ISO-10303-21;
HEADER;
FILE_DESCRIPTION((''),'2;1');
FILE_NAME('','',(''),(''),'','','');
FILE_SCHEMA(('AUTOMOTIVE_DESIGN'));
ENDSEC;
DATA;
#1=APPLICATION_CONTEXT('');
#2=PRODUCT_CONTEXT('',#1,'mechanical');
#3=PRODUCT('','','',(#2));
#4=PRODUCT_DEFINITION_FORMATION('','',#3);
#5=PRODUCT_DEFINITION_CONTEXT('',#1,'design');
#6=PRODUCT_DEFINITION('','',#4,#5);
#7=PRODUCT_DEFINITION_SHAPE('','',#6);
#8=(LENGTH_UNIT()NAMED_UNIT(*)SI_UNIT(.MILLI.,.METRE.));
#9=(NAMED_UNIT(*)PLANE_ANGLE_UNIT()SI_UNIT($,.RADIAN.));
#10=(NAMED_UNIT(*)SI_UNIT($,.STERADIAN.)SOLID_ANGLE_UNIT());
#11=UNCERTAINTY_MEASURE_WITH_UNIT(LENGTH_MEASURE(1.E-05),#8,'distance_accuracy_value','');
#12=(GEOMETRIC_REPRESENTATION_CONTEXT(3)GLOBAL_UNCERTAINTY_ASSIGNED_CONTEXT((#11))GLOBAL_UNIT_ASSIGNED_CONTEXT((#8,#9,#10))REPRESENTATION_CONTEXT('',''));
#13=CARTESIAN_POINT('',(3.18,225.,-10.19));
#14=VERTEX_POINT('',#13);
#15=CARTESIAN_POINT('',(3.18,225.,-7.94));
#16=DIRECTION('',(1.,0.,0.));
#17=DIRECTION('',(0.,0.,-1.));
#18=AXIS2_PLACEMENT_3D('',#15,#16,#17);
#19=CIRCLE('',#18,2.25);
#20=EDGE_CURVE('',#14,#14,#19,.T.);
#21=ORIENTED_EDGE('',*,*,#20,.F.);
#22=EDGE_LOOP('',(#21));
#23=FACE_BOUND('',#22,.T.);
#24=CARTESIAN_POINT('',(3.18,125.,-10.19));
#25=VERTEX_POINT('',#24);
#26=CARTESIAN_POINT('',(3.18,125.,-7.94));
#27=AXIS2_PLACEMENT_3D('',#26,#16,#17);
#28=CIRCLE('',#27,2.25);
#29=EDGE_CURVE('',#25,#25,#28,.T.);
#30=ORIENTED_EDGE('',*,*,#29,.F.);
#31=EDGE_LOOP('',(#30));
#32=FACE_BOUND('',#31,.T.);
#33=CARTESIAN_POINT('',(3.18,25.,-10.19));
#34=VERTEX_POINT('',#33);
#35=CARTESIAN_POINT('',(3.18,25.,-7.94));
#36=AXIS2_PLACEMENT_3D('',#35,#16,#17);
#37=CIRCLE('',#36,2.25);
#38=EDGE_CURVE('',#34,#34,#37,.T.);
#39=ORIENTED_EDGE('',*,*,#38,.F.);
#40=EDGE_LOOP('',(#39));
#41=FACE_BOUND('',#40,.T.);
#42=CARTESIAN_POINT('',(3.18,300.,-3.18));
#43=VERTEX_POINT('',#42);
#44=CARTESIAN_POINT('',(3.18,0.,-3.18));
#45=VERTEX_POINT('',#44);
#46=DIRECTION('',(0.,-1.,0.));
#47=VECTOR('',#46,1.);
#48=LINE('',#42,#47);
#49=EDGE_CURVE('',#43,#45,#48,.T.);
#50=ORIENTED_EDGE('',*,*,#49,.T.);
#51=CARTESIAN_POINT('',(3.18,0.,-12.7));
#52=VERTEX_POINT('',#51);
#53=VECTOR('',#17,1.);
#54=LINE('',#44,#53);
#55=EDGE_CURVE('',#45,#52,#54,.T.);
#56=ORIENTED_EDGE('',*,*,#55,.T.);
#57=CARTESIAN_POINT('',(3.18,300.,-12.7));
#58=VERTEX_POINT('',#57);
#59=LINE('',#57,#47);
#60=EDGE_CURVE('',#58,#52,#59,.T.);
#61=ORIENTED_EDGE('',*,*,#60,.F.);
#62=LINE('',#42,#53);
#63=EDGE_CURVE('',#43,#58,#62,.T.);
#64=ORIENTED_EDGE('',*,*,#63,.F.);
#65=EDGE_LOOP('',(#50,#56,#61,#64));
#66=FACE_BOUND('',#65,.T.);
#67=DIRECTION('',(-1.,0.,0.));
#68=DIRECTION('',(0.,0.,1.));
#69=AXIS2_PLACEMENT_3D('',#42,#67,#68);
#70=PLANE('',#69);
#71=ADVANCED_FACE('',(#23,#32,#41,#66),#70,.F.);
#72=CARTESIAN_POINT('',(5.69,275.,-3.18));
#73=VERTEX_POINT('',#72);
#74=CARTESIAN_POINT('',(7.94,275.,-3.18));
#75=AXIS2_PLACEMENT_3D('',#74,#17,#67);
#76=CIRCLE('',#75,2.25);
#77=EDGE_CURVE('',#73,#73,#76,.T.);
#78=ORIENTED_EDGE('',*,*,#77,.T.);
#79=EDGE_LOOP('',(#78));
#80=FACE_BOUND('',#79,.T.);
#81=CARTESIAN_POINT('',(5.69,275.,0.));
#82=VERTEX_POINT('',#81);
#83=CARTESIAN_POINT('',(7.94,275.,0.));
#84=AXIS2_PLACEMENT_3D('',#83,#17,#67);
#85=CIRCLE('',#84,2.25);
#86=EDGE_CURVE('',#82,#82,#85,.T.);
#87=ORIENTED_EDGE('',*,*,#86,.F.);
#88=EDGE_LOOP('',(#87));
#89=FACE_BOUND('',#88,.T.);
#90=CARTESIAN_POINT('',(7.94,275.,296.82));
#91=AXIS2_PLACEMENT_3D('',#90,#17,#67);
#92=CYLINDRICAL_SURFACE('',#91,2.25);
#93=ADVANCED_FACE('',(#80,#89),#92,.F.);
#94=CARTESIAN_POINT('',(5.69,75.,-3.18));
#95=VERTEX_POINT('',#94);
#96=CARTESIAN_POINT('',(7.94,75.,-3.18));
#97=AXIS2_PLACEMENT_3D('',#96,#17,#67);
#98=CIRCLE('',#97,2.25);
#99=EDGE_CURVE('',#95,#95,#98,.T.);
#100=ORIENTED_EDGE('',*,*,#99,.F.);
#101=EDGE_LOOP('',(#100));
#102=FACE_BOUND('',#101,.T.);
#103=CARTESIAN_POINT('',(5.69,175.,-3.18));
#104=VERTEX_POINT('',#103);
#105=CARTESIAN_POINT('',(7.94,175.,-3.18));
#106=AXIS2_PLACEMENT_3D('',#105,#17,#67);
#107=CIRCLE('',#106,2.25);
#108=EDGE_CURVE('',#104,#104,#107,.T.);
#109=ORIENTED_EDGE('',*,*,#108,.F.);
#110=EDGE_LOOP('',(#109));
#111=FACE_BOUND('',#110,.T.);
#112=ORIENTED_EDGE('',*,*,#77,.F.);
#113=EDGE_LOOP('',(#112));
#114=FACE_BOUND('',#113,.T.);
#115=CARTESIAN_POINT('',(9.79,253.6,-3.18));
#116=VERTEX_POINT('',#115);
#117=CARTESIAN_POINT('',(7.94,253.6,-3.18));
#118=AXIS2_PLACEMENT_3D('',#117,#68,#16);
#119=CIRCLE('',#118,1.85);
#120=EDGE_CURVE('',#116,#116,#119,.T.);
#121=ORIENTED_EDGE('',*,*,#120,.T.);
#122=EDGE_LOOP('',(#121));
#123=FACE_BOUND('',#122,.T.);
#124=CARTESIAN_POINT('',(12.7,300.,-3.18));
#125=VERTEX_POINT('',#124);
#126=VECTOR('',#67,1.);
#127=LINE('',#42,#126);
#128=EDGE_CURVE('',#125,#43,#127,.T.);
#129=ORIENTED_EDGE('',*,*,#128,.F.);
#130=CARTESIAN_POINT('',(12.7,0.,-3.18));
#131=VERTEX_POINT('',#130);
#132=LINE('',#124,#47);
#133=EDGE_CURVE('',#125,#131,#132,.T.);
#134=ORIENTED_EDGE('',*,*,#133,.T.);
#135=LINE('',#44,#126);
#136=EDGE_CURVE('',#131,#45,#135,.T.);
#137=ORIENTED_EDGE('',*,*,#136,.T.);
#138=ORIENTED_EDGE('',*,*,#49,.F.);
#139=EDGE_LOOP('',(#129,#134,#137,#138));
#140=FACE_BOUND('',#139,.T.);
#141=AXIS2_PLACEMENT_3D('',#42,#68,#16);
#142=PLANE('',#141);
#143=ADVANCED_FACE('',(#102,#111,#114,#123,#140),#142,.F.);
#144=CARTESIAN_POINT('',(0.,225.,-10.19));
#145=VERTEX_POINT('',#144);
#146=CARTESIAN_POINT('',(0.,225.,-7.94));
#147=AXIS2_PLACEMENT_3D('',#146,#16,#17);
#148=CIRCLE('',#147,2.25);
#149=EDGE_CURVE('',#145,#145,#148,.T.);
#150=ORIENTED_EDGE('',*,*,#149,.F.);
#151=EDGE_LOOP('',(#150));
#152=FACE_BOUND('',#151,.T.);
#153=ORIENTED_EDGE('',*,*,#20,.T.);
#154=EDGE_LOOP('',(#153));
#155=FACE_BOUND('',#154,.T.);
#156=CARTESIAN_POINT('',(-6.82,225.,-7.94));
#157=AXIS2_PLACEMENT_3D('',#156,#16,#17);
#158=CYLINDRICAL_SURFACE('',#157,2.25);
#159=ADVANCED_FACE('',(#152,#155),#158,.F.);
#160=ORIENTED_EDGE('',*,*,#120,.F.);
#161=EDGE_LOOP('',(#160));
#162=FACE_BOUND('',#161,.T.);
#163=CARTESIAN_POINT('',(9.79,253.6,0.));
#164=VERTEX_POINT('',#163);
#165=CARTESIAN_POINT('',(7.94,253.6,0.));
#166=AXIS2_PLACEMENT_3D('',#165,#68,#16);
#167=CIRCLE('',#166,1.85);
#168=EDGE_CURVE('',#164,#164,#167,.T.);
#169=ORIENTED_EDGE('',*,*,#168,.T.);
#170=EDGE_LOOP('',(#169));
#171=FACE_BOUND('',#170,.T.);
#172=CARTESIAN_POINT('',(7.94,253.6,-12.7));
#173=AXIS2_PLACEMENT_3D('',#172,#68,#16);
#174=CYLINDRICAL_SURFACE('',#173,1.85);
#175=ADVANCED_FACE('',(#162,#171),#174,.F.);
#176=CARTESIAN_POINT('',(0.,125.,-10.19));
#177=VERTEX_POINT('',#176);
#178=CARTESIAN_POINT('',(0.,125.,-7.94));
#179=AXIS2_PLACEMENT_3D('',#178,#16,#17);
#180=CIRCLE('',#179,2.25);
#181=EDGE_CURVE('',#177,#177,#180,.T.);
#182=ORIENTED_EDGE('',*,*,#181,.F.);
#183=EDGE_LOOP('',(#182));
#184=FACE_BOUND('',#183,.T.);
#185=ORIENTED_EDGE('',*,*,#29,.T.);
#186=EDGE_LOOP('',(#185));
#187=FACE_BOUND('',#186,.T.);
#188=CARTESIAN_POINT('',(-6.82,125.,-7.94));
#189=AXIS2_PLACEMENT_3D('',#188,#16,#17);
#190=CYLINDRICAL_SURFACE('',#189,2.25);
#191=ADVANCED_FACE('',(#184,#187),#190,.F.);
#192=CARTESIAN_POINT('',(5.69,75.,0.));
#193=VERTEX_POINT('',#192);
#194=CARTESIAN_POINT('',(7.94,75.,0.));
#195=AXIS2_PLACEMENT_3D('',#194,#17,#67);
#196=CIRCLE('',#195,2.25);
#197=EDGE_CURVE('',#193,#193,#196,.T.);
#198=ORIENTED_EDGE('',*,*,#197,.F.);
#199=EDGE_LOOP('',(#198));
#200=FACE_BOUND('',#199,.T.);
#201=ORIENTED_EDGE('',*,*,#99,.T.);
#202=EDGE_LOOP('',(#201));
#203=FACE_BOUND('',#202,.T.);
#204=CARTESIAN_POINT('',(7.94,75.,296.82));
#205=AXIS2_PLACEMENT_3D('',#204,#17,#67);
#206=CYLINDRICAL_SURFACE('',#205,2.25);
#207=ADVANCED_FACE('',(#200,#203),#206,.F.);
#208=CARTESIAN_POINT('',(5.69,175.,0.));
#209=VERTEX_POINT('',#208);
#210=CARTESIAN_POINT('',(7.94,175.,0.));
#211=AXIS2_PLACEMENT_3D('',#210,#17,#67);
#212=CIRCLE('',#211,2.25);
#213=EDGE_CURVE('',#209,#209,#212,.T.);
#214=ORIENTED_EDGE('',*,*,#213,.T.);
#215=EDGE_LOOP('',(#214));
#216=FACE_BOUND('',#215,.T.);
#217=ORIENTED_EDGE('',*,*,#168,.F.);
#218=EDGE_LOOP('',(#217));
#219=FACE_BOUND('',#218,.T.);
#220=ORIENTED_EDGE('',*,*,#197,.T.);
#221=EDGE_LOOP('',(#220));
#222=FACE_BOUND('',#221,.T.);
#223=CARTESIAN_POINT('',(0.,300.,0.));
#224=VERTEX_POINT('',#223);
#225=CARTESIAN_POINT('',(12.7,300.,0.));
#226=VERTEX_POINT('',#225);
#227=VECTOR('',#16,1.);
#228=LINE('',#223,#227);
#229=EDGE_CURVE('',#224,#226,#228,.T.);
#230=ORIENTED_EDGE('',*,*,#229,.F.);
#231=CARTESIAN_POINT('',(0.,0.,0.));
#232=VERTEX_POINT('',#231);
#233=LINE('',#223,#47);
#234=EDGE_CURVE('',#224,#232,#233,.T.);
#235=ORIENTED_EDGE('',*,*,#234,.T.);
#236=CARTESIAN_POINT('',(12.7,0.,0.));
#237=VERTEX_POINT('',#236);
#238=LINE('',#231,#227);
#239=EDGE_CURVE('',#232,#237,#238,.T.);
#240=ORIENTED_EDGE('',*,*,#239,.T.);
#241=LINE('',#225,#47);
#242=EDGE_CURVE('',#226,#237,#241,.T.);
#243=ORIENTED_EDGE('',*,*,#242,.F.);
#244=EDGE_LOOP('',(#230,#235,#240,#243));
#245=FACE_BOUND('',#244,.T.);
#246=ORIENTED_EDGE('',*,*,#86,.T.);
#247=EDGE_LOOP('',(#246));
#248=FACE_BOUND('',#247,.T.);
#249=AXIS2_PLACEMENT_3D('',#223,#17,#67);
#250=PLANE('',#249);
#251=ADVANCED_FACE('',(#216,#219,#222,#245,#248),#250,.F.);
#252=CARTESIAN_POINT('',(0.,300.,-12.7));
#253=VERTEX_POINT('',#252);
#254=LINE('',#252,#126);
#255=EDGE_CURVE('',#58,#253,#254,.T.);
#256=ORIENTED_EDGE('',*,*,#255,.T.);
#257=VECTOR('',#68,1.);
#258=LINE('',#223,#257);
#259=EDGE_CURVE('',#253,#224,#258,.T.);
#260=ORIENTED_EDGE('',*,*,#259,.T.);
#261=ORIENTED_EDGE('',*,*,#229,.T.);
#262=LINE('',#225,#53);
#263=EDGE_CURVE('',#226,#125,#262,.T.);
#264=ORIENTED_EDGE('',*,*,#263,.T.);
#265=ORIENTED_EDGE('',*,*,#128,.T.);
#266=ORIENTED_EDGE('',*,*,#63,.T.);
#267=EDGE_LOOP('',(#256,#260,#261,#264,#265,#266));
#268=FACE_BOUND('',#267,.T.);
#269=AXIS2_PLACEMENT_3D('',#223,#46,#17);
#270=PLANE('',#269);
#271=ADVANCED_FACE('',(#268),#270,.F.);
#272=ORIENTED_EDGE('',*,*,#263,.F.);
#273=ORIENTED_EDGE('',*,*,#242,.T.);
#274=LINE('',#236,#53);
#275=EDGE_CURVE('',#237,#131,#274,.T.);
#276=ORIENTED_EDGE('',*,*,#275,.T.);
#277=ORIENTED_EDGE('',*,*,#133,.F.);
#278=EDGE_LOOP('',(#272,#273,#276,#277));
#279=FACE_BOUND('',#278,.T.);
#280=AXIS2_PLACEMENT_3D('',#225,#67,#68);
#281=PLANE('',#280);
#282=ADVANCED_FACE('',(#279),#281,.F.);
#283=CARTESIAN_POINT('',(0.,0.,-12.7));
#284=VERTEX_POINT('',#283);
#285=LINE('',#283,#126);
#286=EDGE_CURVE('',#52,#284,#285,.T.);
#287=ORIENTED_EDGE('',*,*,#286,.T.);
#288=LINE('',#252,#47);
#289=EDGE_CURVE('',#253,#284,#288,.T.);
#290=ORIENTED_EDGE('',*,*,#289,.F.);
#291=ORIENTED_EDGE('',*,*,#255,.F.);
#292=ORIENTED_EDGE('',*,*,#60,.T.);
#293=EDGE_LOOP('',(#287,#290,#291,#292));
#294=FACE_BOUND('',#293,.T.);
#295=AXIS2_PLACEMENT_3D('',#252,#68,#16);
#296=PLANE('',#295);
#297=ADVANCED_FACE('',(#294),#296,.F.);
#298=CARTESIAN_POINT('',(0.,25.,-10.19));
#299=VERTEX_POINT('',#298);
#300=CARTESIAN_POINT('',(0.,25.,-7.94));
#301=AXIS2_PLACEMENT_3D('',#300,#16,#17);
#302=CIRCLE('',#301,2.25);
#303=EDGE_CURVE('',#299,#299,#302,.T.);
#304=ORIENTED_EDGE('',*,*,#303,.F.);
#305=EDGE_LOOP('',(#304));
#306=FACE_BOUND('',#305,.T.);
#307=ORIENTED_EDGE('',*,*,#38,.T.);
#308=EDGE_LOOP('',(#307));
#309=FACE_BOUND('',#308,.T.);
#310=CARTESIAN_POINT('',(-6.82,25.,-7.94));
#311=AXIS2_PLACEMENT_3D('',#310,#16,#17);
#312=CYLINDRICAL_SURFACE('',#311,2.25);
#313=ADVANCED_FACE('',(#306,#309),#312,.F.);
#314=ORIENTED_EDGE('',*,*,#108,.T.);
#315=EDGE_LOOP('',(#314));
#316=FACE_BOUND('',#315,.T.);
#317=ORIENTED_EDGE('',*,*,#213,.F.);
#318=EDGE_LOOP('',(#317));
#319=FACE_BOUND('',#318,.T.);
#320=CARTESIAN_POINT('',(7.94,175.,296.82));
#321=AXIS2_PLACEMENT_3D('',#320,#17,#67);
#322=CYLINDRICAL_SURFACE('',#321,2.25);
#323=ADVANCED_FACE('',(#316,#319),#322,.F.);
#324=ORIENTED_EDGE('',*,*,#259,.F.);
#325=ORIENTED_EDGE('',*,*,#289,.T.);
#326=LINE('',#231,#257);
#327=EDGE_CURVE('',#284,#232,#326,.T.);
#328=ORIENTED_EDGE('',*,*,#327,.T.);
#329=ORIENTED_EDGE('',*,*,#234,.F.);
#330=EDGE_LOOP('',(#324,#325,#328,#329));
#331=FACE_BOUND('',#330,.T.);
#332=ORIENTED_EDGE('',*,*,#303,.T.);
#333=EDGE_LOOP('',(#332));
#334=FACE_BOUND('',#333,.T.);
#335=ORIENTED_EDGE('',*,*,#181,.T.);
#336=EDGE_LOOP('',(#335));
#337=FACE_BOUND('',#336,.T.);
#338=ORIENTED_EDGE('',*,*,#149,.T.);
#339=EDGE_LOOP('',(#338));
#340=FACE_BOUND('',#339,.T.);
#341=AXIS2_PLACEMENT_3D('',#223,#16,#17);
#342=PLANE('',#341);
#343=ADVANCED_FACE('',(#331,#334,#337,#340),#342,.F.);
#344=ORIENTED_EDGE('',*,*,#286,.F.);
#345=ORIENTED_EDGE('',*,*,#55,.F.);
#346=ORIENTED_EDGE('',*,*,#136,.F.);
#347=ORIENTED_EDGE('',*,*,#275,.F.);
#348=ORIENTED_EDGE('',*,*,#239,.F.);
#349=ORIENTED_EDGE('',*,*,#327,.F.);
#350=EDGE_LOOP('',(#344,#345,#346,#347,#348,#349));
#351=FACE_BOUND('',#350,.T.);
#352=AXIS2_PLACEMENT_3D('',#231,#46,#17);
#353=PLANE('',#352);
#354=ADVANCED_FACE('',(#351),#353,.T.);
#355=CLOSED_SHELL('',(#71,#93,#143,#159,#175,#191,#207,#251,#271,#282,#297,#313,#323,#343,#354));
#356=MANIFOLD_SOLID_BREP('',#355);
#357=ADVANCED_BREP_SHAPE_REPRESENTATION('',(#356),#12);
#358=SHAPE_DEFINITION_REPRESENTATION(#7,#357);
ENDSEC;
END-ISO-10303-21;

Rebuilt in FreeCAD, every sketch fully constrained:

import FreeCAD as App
import Part
import Sketcher

doc = App.newDocument("Part")
body = doc.addObject("PartDesign::Body", "Body")

sketch1 = doc.addObject("Sketcher::SketchObject", "Sketch")
body.addObject(sketch1)
sketch1.AttachmentSupport = (doc.XZ_Plane, [""])
sketch1.MapMode = "FlatFace"
sketch1.addGeometry([
    Part.LineSegment(App.Vector(0, 0, 0), App.Vector(12.7, 0, 0)),
    Part.LineSegment(App.Vector(12.7, 0, 0), App.Vector(12.7, -3.2, 0)),
    Part.LineSegment(App.Vector(12.7, -3.2, 0), App.Vector(3.2, -3.2, 0)),
    Part.LineSegment(App.Vector(3.2, -3.2, 0), App.Vector(3.2, -12.7, 0)),
    Part.LineSegment(App.Vector(3.2, -12.7, 0), App.Vector(0, -12.7, 0)),
    Part.LineSegment(App.Vector(0, -12.7, 0), App.Vector(0, 0, 0)),
], False)
sketch1.addConstraint([
    Sketcher.Constraint("Coincident", 0, 2, 1, 1),
    Sketcher.Constraint("Coincident", 1, 2, 2, 1),
    Sketcher.Constraint("Coincident", 2, 2, 3, 1),
    Sketcher.Constraint("Coincident", 3, 2, 4, 1),
    Sketcher.Constraint("Coincident", 4, 2, 5, 1),
    Sketcher.Constraint("Coincident", 5, 2, 0, 1),
    Sketcher.Constraint("Horizontal", 0),
    Sketcher.Constraint("Vertical", 1),
    Sketcher.Constraint("Horizontal", 2),
    Sketcher.Constraint("Vertical", 3),
    Sketcher.Constraint("Horizontal", 4),
    Sketcher.Constraint("Vertical", 5),
    Sketcher.Constraint("Coincident", 5, 2, -1, 1),
    Sketcher.Constraint("Equal", 4, 1),
    Sketcher.Constraint("Equal", 2, 3),
    Sketcher.Constraint("DistanceX", 0, 1, 0, 2, 12.7),
    Sketcher.Constraint("DistanceX", 2, 2, 2, 1, 9.52),
])
pad1 = doc.addObject("PartDesign::Pad", "Pad")
body.addObject(pad1)
pad1.Profile = sketch1
pad1.Length = 300
pad1.Reversed = True

sketch2 = doc.addObject("Sketcher::SketchObject", "Sketch001")
body.addObject(sketch2)
sketch2.AttachmentSupport = (doc.XY_Plane, [""])
sketch2.MapMode = "FlatFace"
sketch2.AttachmentOffset = App.Placement(App.Vector(0, 0, -3.18), App.Rotation())
sketch2.addGeometry([
    Part.Circle(App.Vector(7.9, 275, 0), App.Vector(0, 0, 1), 2.2),
    Part.Circle(App.Vector(7.9, 175, 0), App.Vector(0, 0, 1), 2.2),
    Part.Circle(App.Vector(7.9, 75, 0), App.Vector(0, 0, 1), 2.2),
], False)
sketch2.addConstraint([
    Sketcher.Constraint("Equal", 0, 1),
    Sketcher.Constraint("Equal", 1, 2),
    Sketcher.Constraint("Vertical", 0, 3, 1, 3),
    Sketcher.Constraint("Vertical", 1, 3, 2, 3),
    Sketcher.Constraint("Diameter", 0, 4.5),
    Sketcher.Constraint("DistanceY", -1, 1, 0, 3, 275.0),
    Sketcher.Constraint("DistanceY", -1, 1, 1, 3, 175.0),
    Sketcher.Constraint("DistanceY", -1, 1, 2, 3, 75.0),
    Sketcher.Constraint("DistanceX", -1, 1, 0, 3, 7.94),
])
pocket1 = doc.addObject("PartDesign::Pocket", "Pocket")
body.addObject(pocket1)
pocket1.Profile = sketch2
pocket1.Length = 300
pocket1.Reversed = True

sketch3 = doc.addObject("Sketcher::SketchObject", "Sketch002")
body.addObject(sketch3)
sketch3.AttachmentSupport = (doc.YZ_Plane, [""])
sketch3.MapMode = "FlatFace"
sketch3.AttachmentOffset = App.Placement(App.Vector(0, 0, 3.18), App.Rotation())
sketch3.addGeometry([
    Part.Circle(App.Vector(225, -7.9, 0), App.Vector(0, 0, 1), 2.2),
    Part.Circle(App.Vector(125, -7.9, 0), App.Vector(0, 0, 1), 2.2),
    Part.Circle(App.Vector(25, -7.9, 0), App.Vector(0, 0, 1), 2.2),
], False)
sketch3.addConstraint([
    Sketcher.Constraint("Equal", 0, 1),
    Sketcher.Constraint("Equal", 1, 2),
    Sketcher.Constraint("Horizontal", 0, 3, 1, 3),
    Sketcher.Constraint("Horizontal", 1, 3, 2, 3),
    Sketcher.Constraint("Diameter", 0, 4.5),
    Sketcher.Constraint("DistanceX", -1, 1, 0, 3, 225.0),
    Sketcher.Constraint("DistanceX", -1, 1, 1, 3, 125.0),
    Sketcher.Constraint("DistanceX", -1, 1, 2, 3, 25.0),
    Sketcher.Constraint("DistanceY", 0, 3, -1, 1, 7.94),
])
pocket2 = doc.addObject("PartDesign::Pocket", "Pocket001")
body.addObject(pocket2)
pocket2.Profile = sketch3
pocket2.Length = 10

sketch4 = doc.addObject("Sketcher::SketchObject", "Sketch003")
body.addObject(sketch4)
sketch4.AttachmentSupport = (doc.XY_Plane, [""])
sketch4.MapMode = "FlatFace"
sketch4.addGeometry(Part.Circle(App.Vector(7.9, 253.6, 0), App.Vector(0, 0, 1), 1.9), False)
sketch4.addConstraint([
    Sketcher.Constraint("Diameter", 0, 3.7),
    Sketcher.Constraint("DistanceY", -1, 1, 0, 3, 253.6),
    Sketcher.Constraint("DistanceX", -1, 1, 0, 3, 7.94),
])
pocket3 = doc.addObject("PartDesign::Pocket", "Pocket002")
body.addObject(pocket3)
pocket3.Profile = sketch4
pocket3.Type = "ThroughAll"

doc.recompute()
